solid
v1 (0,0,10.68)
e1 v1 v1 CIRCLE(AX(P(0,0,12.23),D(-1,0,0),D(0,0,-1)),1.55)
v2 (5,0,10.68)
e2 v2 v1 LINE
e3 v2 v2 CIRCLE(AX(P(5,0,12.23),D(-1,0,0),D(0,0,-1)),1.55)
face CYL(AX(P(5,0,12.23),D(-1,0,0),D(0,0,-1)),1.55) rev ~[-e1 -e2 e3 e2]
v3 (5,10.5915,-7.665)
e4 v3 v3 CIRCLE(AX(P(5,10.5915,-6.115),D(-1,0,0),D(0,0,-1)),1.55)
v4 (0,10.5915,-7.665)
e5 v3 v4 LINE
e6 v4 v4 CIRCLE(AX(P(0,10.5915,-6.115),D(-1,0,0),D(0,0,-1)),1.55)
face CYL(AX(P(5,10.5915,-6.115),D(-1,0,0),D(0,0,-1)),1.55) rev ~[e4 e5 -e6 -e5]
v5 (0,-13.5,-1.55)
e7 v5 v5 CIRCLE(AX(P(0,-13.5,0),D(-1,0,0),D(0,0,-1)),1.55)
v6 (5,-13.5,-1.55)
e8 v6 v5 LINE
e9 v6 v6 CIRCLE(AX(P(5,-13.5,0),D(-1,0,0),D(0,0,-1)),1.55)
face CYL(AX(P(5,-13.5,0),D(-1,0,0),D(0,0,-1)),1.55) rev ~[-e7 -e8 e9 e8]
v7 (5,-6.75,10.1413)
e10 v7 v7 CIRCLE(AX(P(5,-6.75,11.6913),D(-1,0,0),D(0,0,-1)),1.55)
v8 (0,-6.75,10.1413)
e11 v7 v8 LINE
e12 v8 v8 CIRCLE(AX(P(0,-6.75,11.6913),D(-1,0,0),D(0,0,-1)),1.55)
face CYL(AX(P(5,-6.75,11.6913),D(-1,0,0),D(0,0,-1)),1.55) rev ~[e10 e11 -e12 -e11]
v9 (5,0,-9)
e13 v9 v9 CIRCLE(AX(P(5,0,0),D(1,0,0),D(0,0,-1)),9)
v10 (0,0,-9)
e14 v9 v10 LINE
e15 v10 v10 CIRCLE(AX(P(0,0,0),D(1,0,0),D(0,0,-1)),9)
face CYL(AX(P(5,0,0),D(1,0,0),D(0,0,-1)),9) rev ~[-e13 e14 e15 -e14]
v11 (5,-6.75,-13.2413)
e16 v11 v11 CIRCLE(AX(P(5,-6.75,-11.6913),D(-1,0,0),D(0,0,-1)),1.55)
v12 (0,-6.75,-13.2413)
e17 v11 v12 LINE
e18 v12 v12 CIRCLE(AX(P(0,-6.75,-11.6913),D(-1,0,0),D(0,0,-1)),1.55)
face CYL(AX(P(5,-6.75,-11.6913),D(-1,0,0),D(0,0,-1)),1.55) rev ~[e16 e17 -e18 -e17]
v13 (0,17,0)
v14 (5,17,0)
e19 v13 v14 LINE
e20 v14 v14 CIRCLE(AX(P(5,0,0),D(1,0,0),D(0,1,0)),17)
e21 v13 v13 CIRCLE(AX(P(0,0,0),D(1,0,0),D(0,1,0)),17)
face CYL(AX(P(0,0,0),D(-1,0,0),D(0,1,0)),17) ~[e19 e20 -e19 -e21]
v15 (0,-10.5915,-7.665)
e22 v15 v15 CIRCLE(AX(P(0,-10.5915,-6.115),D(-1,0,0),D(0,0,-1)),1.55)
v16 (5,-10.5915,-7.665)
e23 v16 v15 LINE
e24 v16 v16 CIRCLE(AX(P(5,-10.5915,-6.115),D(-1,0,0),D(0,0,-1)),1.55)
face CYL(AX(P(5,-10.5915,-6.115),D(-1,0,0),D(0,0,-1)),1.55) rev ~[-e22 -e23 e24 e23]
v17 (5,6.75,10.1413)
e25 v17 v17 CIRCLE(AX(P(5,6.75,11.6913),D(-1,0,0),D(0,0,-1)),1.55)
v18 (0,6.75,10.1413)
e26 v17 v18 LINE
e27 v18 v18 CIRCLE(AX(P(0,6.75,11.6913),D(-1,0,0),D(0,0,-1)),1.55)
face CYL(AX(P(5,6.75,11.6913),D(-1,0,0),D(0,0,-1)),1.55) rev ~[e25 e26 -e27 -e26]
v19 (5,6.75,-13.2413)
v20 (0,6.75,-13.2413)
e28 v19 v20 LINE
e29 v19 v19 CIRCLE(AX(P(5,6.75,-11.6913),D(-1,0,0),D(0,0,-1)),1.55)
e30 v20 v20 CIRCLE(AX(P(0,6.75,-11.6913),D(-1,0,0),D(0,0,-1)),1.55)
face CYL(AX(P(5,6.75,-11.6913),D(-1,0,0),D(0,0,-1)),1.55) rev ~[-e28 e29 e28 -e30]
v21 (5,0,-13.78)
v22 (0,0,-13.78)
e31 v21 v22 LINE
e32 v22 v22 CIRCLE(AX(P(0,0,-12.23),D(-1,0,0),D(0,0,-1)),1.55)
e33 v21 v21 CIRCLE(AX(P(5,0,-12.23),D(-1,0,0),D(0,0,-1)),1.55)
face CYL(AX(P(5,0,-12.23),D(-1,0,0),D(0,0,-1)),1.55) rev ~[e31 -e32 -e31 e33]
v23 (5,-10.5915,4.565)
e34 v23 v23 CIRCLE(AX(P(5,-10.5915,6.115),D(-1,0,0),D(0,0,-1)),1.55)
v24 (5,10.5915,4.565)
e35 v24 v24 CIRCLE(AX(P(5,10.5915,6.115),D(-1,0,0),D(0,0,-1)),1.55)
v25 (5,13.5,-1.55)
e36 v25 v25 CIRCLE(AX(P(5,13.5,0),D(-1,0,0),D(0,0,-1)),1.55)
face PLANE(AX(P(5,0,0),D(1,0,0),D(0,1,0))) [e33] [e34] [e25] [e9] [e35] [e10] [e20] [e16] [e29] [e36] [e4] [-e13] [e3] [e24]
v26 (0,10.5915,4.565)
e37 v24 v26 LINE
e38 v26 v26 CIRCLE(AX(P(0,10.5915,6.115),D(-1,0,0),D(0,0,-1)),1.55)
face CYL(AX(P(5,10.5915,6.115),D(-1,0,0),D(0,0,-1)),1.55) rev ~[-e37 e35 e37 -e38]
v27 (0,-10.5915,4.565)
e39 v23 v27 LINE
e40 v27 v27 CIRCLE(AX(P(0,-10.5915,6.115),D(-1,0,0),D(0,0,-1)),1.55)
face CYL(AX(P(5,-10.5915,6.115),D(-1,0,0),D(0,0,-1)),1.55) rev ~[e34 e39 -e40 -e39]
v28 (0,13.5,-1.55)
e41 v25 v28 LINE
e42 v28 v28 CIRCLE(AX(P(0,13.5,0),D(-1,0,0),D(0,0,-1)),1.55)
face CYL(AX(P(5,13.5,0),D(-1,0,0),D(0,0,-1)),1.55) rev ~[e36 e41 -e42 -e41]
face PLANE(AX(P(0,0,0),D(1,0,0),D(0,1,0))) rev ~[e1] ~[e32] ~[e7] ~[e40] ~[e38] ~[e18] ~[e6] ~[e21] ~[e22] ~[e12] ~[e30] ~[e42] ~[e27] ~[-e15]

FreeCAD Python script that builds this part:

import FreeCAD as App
import Part
import Sketcher
from FreeCAD import Vector
Q = App.Units.Quantity

doc = App.newDocument("Part")
body = doc.addObject("PartDesign::Body", "Body")

sketch1 = body.newObject("Sketcher::SketchObject", "Sketch")
sketch1.AttachmentSupport = (doc.getObject("YZ_Plane"), [""])
sketch1.MapMode = "FlatFace"
sketch1.addGeometry(Part.Circle(Vector(0, 0, 0), Vector(0, 0, 1), 17), False)
sketch1.addConstraint([
    Sketcher.Constraint("Coincident", 0, 3, -1, 1),
    Sketcher.Constraint("Diameter", 0, Q("34 mm")),
])
pad1 = body.newObject("PartDesign::Pad", "Pad")
pad1.Profile = sketch1
pad1.Length = 5

sketch2 = body.newObject("Sketcher::SketchObject", "Sketch001")
sketch2.AttachmentSupport = (doc.getObject("YZ_Plane"), [""])
sketch2.MapMode = "FlatFace"
sketch2.AttachmentOffset = App.Placement(Vector(0, 0, 5), App.Rotation())
sketch2.addGeometry([
    Part.Circle(Vector(13.5, 0, 0), Vector(0, 0, 1), 1.6),
    Part.Circle(Vector(6.8, 11.7, 0), Vector(0, 0, 1), 1.6),
    Part.Circle(Vector(-6.8, 11.7, 0), Vector(0, 0, 1), 1.6),
    Part.Circle(Vector(-13.5, 0, 0), Vector(0, 0, 1), 1.6),
    Part.Circle(Vector(-6.8, -11.7, 0), Vector(0, 0, 1), 1.6),
    Part.Circle(Vector(6.8, -11.7, 0), Vector(0, 0, 1), 1.6),
    Part.Circle(Vector(10.6, -6.1, 0), Vector(0, 0, 1), 1.6),
    Part.Circle(Vector(10.6, 6.1, 0), Vector(0, 0, 1), 1.6),
    Part.Circle(Vector(0, 12.2, 0), Vector(0, 0, 1), 1.6),
    Part.Circle(Vector(-10.6, 6.1, 0), Vector(0, 0, 1), 1.6),
    Part.Circle(Vector(0, -12.2, 0), Vector(0, 0, 1), 1.6),
    Part.Circle(Vector(-10.6, -6.1, 0), Vector(0, 0, 1), 1.6),
], False)
sketch2.addConstraint([
    Sketcher.Constraint("Equal", 0, 1),
    Sketcher.Constraint("Equal", 1, 2),
    Sketcher.Constraint("Equal", 2, 3),
    Sketcher.Constraint("Equal", 3, 4),
    Sketcher.Constraint("Equal", 4, 5),
    Sketcher.Constraint("Equal", 5, 6),
    Sketcher.Constraint("Equal", 6, 7),
    Sketcher.Constraint("Equal", 7, 8),
    Sketcher.Constraint("Equal", 8, 9),
    Sketcher.Constraint("Equal", 9, 10),
    Sketcher.Constraint("Equal", 10, 11),
    Sketcher.Constraint("Symmetric", 0, 3, 3, 3, -1, 1),
    Sketcher.Constraint("Symmetric", 1, 3, 4, 3, -1, 1),
    Sketcher.Constraint("Symmetric", 2, 3, 5, 3, -1, 1),
    Sketcher.Constraint("Symmetric", 6, 3, 9, 3, -1, 1),
    Sketcher.Constraint("Symmetric", 8, 3, 10, 3, -1, 1),
    Sketcher.Constraint("Symmetric", 7, 3, 11, 3, -1, 1),
    Sketcher.Constraint("Symmetric", 1, 3, 2, 3, -2),
    Sketcher.Constraint("Symmetric", 7, 3, 9, 3, -2),
    Sketcher.Constraint("PointOnObject", 0, 3, -1),
    Sketcher.Constraint("PointOnObject", 8, 3, -2),
    Sketcher.Constraint("Diameter", 0, Q("3.1 mm")),
    Sketcher.Constraint("DistanceX", 3, 3, 0, 3, Q("27 mm")),
    Sketcher.Constraint("DistanceX", 2, 3, 1, 3, Q("13.5 mm")),
    Sketcher.Constraint("DistanceY", -1, 1, 8, 3, Q("12.23 mm")),
    Sketcher.Constraint("DistanceY", 6, 3, 7, 3, Q("12.23 mm")),
    Sketcher.Constraint("DistanceY", -1, 1, 1, 3, Q("11.6913 mm")),
    Sketcher.Constraint("DistanceX", -1, 1, 6, 3, Q("10.5915 mm")),
])
doc.recompute()
hole = body.newObject("PartDesign::Hole", "Hole")
hole.Profile = sketch2
hole.ThreadType = "None"
hole.Diameter = 3.1
hole.DepthType = "ThroughAll"

sketch3 = body.newObject("Sketcher::SketchObject", "Sketch002")
sketch3.AttachmentSupport = (doc.getObject("YZ_Plane"), [""])
sketch3.MapMode = "FlatFace"
sketch3.AttachmentOffset = App.Placement(Vector(0, 0, 5), App.Rotation())
sketch3.addGeometry(Part.Circle(Vector(0, 0, 0), Vector(0, 0, 1), 9), False)
sketch3.addConstraint([
    Sketcher.Constraint("Coincident", 0, 3, -1, 1),
    Sketcher.Constraint("Diameter", 0, Q("18 mm")),
])
pocket1 = body.newObject("PartDesign::Pocket", "Pocket")
pocket1.Profile = sketch3
pocket1.Length = 5

doc.recompute()
